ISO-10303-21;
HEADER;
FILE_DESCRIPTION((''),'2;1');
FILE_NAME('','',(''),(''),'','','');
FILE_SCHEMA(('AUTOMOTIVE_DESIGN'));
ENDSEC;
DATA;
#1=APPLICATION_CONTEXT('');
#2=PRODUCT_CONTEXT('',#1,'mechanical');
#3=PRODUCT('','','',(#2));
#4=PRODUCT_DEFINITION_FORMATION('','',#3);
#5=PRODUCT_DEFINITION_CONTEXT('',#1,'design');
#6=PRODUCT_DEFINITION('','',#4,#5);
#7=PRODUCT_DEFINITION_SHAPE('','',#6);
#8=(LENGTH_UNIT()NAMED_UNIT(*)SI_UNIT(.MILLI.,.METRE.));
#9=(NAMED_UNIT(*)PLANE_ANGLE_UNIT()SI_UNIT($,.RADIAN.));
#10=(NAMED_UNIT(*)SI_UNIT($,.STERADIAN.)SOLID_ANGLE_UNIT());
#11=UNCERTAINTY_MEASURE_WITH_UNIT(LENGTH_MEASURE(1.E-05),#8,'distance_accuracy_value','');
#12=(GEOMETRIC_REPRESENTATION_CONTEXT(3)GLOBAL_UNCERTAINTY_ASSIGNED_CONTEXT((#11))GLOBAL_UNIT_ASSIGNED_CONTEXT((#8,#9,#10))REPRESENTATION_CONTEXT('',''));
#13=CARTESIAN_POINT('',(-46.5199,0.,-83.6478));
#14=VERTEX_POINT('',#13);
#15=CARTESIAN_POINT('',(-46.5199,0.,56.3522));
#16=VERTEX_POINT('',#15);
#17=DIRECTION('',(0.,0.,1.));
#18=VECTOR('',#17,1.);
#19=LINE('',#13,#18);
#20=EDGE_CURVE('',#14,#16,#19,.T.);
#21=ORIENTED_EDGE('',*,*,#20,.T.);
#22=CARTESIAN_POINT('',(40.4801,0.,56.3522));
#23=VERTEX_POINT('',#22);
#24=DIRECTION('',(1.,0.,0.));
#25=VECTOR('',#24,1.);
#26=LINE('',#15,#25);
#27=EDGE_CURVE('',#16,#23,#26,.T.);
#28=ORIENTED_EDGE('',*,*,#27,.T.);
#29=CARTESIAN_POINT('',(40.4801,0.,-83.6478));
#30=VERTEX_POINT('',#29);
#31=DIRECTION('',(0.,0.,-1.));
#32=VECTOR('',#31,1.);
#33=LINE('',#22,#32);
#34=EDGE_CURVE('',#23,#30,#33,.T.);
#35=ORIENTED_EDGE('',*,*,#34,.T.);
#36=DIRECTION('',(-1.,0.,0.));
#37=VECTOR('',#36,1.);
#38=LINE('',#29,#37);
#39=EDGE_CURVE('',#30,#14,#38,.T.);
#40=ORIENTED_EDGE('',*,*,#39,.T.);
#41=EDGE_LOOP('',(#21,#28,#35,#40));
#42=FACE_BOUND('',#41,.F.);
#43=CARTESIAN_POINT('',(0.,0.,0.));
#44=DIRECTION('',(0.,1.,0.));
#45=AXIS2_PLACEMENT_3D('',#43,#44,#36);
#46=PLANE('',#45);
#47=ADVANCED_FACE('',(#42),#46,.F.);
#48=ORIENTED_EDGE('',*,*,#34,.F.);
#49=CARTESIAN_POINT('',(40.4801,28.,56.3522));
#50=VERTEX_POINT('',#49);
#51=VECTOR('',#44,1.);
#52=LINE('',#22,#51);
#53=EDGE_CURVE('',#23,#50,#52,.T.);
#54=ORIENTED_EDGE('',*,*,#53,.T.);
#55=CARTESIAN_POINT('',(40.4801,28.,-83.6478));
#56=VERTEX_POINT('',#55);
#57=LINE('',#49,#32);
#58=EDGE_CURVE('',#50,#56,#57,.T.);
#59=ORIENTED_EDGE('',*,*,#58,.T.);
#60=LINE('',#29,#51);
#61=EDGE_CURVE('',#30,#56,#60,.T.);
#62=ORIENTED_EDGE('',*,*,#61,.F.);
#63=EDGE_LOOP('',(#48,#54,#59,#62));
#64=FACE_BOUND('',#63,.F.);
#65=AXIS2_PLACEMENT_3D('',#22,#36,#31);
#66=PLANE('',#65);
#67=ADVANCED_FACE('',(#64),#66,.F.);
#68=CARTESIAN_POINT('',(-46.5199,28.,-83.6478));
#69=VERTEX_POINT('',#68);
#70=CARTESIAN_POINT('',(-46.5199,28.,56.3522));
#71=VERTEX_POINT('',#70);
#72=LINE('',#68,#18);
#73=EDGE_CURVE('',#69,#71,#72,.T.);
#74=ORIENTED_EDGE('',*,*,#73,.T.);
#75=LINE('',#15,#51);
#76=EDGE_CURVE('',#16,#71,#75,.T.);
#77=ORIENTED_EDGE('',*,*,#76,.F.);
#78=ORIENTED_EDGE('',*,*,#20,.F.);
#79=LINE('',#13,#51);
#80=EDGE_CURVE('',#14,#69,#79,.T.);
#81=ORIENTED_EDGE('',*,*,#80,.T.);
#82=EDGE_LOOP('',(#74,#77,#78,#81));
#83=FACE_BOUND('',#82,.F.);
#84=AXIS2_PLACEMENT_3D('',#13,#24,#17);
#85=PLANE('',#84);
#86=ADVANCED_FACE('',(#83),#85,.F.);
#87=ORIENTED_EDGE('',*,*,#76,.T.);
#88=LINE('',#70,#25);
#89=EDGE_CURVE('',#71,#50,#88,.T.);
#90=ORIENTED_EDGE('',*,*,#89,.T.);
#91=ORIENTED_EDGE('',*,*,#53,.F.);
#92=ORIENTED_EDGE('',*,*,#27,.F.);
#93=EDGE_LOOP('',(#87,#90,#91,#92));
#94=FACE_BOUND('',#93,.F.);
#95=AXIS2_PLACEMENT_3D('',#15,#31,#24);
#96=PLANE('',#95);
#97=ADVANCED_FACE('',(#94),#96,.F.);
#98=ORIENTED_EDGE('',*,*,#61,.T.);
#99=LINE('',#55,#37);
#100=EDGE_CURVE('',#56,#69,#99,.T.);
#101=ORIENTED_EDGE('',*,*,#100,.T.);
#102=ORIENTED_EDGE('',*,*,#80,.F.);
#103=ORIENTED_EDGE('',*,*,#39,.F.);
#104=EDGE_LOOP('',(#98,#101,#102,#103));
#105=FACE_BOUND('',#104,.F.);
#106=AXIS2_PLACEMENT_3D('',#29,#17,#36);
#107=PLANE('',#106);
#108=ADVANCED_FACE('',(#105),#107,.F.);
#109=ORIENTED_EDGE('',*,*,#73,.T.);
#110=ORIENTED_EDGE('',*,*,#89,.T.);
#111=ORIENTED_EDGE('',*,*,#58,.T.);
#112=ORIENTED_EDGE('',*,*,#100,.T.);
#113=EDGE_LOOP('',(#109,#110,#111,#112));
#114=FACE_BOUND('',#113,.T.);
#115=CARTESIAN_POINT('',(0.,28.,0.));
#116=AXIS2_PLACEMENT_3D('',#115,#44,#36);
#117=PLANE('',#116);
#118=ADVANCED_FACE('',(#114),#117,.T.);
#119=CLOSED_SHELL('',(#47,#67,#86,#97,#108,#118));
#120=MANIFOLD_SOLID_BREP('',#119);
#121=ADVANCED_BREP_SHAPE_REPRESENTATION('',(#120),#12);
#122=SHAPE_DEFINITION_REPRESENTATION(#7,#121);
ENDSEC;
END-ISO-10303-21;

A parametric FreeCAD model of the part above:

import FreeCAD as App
import Part
import Sketcher
from FreeCAD import Vector

doc = App.newDocument("Part")
body = doc.addObject("PartDesign::Body", "Body")

sketch1 = body.newObject("Sketcher::SketchObject", "Sketch")
sketch1.AttachmentSupport = (doc.getObject("XZ_Plane"), [""])
sketch1.MapMode = "FlatFace"
sketch1.addGeometry([
    Part.LineSegment(Vector(-47, -84, 0), Vector(-47, 56, 0)),
    Part.LineSegment(Vector(-47, 56, 0), Vector(40, 56, 0)),
    Part.LineSegment(Vector(40, 56, 0), Vector(40, -84, 0)),
    Part.LineSegment(Vector(40, -84, 0), Vector(-47, -84, 0)),
], False)
sketch1.addConstraint([
    Sketcher.Constraint("Coincident", 0, 2, 1, 1),
    Sketcher.Constraint("Coincident", 1, 2, 2, 1),
    Sketcher.Constraint("Coincident", 2, 2, 3, 1),
    Sketcher.Constraint("Coincident", 3, 2, 0, 1),
    Sketcher.Constraint("Vertical", 0),
    Sketcher.Constraint("Horizontal", 1),
    Sketcher.Constraint("Vertical", 2),
    Sketcher.Constraint("Horizontal", 3),
    Sketcher.Constraint("DistanceX", 1, 1, 1, 2, 87.0),
    Sketcher.Constraint("DistanceY", 0, 1, 0, 2, 140.0),
    Sketcher.Constraint("DistanceX", 0, 2, -1, 1, 46.52),
    Sketcher.Constraint("DistanceY", -1, 1, 0, 2, 56.3522),
])
pad1 = body.newObject("PartDesign::Pad", "Pad")
pad1.Profile = sketch1
pad1.Length = 28
pad1.Reversed = True

doc.recompute()
